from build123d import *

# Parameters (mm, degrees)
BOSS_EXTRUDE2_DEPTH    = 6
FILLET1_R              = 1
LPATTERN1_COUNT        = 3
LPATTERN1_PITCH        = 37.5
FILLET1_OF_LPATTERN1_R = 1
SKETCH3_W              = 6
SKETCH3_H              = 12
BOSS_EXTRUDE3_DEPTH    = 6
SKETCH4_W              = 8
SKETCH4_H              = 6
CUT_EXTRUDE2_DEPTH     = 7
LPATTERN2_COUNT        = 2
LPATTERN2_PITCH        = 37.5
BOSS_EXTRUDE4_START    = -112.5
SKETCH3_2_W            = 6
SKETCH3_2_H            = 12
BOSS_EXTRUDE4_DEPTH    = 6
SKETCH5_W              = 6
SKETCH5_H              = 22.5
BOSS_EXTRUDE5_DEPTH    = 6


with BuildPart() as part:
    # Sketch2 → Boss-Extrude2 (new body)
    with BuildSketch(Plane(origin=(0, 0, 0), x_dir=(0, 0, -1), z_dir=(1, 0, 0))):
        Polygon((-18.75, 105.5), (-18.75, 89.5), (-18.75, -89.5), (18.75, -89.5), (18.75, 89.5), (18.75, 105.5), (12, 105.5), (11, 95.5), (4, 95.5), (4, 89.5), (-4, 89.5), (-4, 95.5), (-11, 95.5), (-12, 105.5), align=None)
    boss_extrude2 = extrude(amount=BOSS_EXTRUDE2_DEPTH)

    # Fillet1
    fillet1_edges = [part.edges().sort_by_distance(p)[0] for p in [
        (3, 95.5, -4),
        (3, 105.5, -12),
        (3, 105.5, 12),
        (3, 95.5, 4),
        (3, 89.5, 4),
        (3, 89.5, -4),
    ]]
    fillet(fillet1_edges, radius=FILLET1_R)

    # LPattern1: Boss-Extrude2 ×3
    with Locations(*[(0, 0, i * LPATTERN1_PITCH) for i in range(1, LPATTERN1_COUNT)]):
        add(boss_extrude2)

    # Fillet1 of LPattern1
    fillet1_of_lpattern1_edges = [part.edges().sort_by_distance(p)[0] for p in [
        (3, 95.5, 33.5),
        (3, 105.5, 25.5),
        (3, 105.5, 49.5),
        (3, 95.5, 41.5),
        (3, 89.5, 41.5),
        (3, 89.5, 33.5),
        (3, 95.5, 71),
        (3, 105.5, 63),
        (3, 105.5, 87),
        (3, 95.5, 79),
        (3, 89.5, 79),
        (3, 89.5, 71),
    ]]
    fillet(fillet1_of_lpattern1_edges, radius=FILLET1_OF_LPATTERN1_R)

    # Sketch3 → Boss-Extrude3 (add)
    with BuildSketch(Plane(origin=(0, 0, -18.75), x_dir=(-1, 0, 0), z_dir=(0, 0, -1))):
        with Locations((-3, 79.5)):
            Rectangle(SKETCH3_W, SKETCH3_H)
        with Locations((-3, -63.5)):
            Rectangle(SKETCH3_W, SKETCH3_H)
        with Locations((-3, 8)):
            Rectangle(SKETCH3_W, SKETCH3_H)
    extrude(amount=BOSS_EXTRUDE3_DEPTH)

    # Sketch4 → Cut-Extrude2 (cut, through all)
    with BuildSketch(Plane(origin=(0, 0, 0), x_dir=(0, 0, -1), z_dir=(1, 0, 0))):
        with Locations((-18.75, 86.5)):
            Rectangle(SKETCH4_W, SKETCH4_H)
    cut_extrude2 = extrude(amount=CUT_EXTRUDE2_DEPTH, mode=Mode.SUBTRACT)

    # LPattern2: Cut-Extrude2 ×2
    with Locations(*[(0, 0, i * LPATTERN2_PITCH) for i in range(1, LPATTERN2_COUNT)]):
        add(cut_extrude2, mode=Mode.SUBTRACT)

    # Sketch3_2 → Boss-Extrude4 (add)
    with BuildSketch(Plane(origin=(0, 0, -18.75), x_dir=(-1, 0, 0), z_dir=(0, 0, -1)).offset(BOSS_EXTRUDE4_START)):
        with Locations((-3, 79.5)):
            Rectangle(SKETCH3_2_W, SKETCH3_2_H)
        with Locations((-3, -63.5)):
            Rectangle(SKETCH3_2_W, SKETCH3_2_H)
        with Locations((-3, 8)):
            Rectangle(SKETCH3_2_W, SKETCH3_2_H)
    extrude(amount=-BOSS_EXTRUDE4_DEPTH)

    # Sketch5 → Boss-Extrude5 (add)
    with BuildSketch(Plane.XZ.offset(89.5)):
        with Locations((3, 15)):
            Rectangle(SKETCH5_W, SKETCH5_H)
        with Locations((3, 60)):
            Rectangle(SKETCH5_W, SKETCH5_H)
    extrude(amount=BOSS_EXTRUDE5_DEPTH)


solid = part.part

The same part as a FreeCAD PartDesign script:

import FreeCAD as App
import Part
import Sketcher

V = App.Vector


def edges_at(feature, points):
    """Names of the edges that pass closest to the given points."""
    edges = feature.Shape.Edges
    near = lambda p: min(range(len(edges)), key=lambda i: edges[i].distToShape(Part.Vertex(*p))[0])
    return sorted({f"Edge{near(p) + 1}" for p in points})


def add_polygon(sketch, points):
    """Adds a closed chain of lines whose ends are joined by coincident constraints."""
    first, n = sketch.GeometryCount, len(points)
    for a, b in zip(points, points[1:] + points[:1]):
        sketch.addGeometry(Part.LineSegment(App.Vector(*a, 0), App.Vector(*b, 0)), False)
    for i in range(n):
        sketch.addConstraint(Sketcher.Constraint("Coincident", first + i, 2, first + (i + 1) % n, 1))

doc = App.newDocument("Part")
body = doc.addObject("PartDesign::Body", "Body")

# Sketch on YZ plane
sketch1 = doc.addObject("Sketcher::SketchObject", "Sketch")
body.addObject(sketch1)
sketch1.AttachmentSupport = (doc.YZ_Plane, [""])
sketch1.MapMode = "FlatFace"
add_polygon(sketch1, [(106, 19), (-90, 19), (-90, -19), (106, -19), (106, -12), (96, -11), (96, -4), (90, -4), (90, 4), (96, 4), (96, 11), (106, 12)])  # lines 0-11
sketch1.addConstraint([
    Sketcher.Constraint("Horizontal", 0),
    Sketcher.Constraint("Vertical", 1),
    Sketcher.Constraint("Horizontal", 2),
    Sketcher.Constraint("Vertical", 3),
    Sketcher.Constraint("Vertical", 5),
    Sketcher.Constraint("Horizontal", 6),
    Sketcher.Constraint("Vertical", 7),
    Sketcher.Constraint("Horizontal", 8),
    Sketcher.Constraint("Vertical", 9),
    Sketcher.Constraint("Vertical", 11),
    Sketcher.Constraint("Symmetric", 5, 2, 8, 2, -1),
    Sketcher.Constraint("Symmetric", 3, 2, 10, 2, -1),
    Sketcher.Constraint("Equal", 5, 9),
    Sketcher.Constraint("Equal", 3, 11),
    Sketcher.Constraint("DistanceX", 0, 2, 0, 1, 195.0),
    Sketcher.Constraint("DistanceX", 6, 2, 6, 1, 6.0),
    Sketcher.Constraint("DistanceY", 5, 1, 5, 2, 7.0),
    Sketcher.Constraint("DistanceY", 7, 1, 7, 2, 8.0),
    Sketcher.Constraint("DistanceY", 1, 2, 1, 1, 37.5),
    Sketcher.Constraint("DistanceY", 3, 2, -1, 1, 12.0),
    Sketcher.Constraint("DistanceX", 4, 2, 3, 2, 10.0),
    Sketcher.Constraint("DistanceX", 0, 2, -1, 1, 89.5),
])
pad1 = doc.addObject("PartDesign::Pad", "Pad")
body.addObject(pad1)
pad1.Profile = sketch1
pad1.Length = 6
doc.recompute()

fillet = doc.addObject("PartDesign::Fillet", "Fillet")
body.addObject(fillet)
fillet.Base = (pad1, edges_at(pad1, [
    (3, 95.5, -4),
    (3, 105.5, -12),
    (3, 105.5, 12),
    (3, 95.5, 4),
    (3, 89.5, 4),
    (3, 89.5, -4),
]))
fillet.Radius = 1
doc.recompute()

linearpattern = doc.addObject("PartDesign::LinearPattern", "LinearPattern")
body.addObject(linearpattern)
linearpattern.Originals = [pad1]
linearpattern.Direction = (doc.Z_Axis, [""])
linearpattern.Mode = "offset"
linearpattern.Offset = 37.5
linearpattern.Occurrences = 3
body.Tip = linearpattern
doc.recompute()

fillet2 = doc.addObject("PartDesign::Fillet", "Fillet001")
body.addObject(fillet2)
fillet2.Base = (linearpattern, edges_at(linearpattern, [
    (3, 95.5, 33.5),
    (3, 105.5, 25.5),
    (3, 105.5, 49.5),
    (3, 95.5, 41.5),
    (3, 89.5, 41.5),
    (3, 89.5, 33.5),
    (3, 95.5, 71),
    (3, 105.5, 63),
    (3, 105.5, 87),
    (3, 95.5, 79),
    (3, 89.5, 79),
    (3, 89.5, 71),
]))
fillet2.Radius = 1

# Sketch on XY plane
sketch2 = doc.addObject("Sketcher::SketchObject", "Sketch001")
body.addObject(sketch2)
sketch2.AttachmentSupport = (doc.XY_Plane, [""])
sketch2.MapMode = "FlatFace"
sketch2.AttachmentOffset = App.Placement(V(0, 0, -18.75), App.Rotation())
add_polygon(sketch2, [(6, 86), (6, 74), (0, 74), (0, 86)])  # lines 0-3
add_polygon(sketch2, [(6, -58), (6, -70), (0, -70), (0, -58)])  # lines 4-7
add_polygon(sketch2, [(6, 14), (6, 2), (0, 2), (0, 14)])  # lines 8-11
sketch2.addConstraint([
    Sketcher.Constraint("Vertical", 0),
    Sketcher.Constraint("Horizontal", 1),
    Sketcher.Constraint("Vertical", 2),
    Sketcher.Constraint("Horizontal", 3),
    Sketcher.Constraint("Vertical", 4),
    Sketcher.Constraint("Horizontal", 5),
    Sketcher.Constraint("Vertical", 6),
    Sketcher.Constraint("Horizontal", 7),
    Sketcher.Constraint("Vertical", 8),
    Sketcher.Constraint("Horizontal", 9),
    Sketcher.Constraint("Vertical", 10),
    Sketcher.Constraint("Horizontal", 11),
    Sketcher.Constraint("PointOnObject", 1, 2, -2),
    Sketcher.Constraint("PointOnObject", 5, 2, -2),
    Sketcher.Constraint("PointOnObject", 9, 2, -2),
    Sketcher.Constraint("Vertical", 3, 2, 4, 2),
    Sketcher.Constraint("Vertical", 7, 2, 8, 2),
    Sketcher.Constraint("Equal", 2, 4),
    Sketcher.Constraint("Equal", 6, 8),
    Sketcher.Constraint("DistanceX", 1, 2, 1, 1, 6.0),
    Sketcher.Constraint("DistanceY", 0, 2, 0, 1, 12.0),
    Sketcher.Constraint("DistanceY", -1, 1, 8, 2, 2.0),
    Sketcher.Constraint("DistanceY", 4, 2, 0, 2, 143.0),
    Sketcher.Constraint("DistanceY", -1, 1, 0, 2, 73.5),
])
pad2 = doc.addObject("PartDesign::Pad", "Pad001")
body.addObject(pad2)
pad2.Profile = sketch2
pad2.Length = 6
pad2.Reversed = True

# Sketch on YZ plane
sketch3 = doc.addObject("Sketcher::SketchObject", "Sketch002")
body.addObject(sketch3)
sketch3.AttachmentSupport = (doc.YZ_Plane, [""])
sketch3.MapMode = "FlatFace"
add_polygon(sketch3, [(90, 23), (84, 23), (84, 15), (90, 15)])  # lines 0-3
sketch3.addConstraint([
    Sketcher.Constraint("Horizontal", 0),
    Sketcher.Constraint("Vertical", 1),
    Sketcher.Constraint("Horizontal", 2),
    Sketcher.Constraint("Vertical", 3),
    Sketcher.Constraint("DistanceX", 0, 2, 0, 1, 6.0),
    Sketcher.Constraint("DistanceY", 1, 2, 1, 1, 8.0),
    Sketcher.Constraint("DistanceX", -1, 1, 0, 2, 83.5),
    Sketcher.Constraint("DistanceY", -1, 1, 0, 2, 22.75),
])
pocket1 = doc.addObject("PartDesign::Pocket", "Pocket")
body.addObject(pocket1)
pocket1.Profile = sketch3
pocket1.Type = "ThroughAll"
pocket1.Reversed = True
doc.recompute()

linearpattern2 = doc.addObject("PartDesign::LinearPattern", "LinearPattern001")
body.addObject(linearpattern2)
linearpattern2.Originals = [pocket1]
linearpattern2.Direction = (doc.Z_Axis, [""])
linearpattern2.Mode = "offset"
linearpattern2.Offset = 37.5
linearpattern2.Occurrences = 2
body.Tip = linearpattern2

# Sketch on XY plane
sketch4 = doc.addObject("Sketcher::SketchObject", "Sketch003")
body.addObject(sketch4)
sketch4.AttachmentSupport = (doc.XY_Plane, [""])
sketch4.MapMode = "FlatFace"
sketch4.AttachmentOffset = App.Placement(V(0, 0, 93.75), App.Rotation())
add_polygon(sketch4, [(6, 86), (6, 74), (0, 74), (0, 86)])  # lines 0-3
add_polygon(sketch4, [(6, -58), (6, -70), (0, -70), (0, -58)])  # lines 4-7
add_polygon(sketch4, [(6, 14), (6, 2), (0, 2), (0, 14)])  # lines 8-11
sketch4.addConstraint([
    Sketcher.Constraint("Vertical", 0),
    Sketcher.Constraint("Horizontal", 1),
    Sketcher.Constraint("Vertical", 2),
    Sketcher.Constraint("Horizontal", 3),
    Sketcher.Constraint("Vertical", 4),
    Sketcher.Constraint("Horizontal", 5),
    Sketcher.Constraint("Vertical", 6),
    Sketcher.Constraint("Horizontal", 7),
    Sketcher.Constraint("Vertical", 8),
    Sketcher.Constraint("Horizontal", 9),
    Sketcher.Constraint("Vertical", 10),
    Sketcher.Constraint("Horizontal", 11),
    Sketcher.Constraint("PointOnObject", 1, 2, -2),
    Sketcher.Constraint("PointOnObject", 5, 2, -2),
    Sketcher.Constraint("PointOnObject", 9, 2, -2),
    Sketcher.Constraint("Vertical", 3, 2, 4, 2),
    Sketcher.Constraint("Vertical", 7, 2, 8, 2),
    Sketcher.Constraint("Equal", 2, 4),
    Sketcher.Constraint("Equal", 6, 8),
    Sketcher.Constraint("DistanceX", 1, 2, 1, 1, 6.0),
    Sketcher.Constraint("DistanceY", 0, 2, 0, 1, 12.0),
    Sketcher.Constraint("DistanceY", -1, 1, 8, 2, 2.0),
    Sketcher.Constraint("DistanceY", 4, 2, 0, 2, 143.0),
    Sketcher.Constraint("DistanceY", -1, 1, 0, 2, 73.5),
])
pad3 = doc.addObject("PartDesign::Pad", "Pad002")
body.addObject(pad3)
pad3.Profile = sketch4
pad3.Length = 6

# Sketch on XZ plane
sketch5 = doc.addObject("Sketcher::SketchObject", "Sketch004")
body.addObject(sketch5)
sketch5.AttachmentSupport = (doc.XZ_Plane, [""])
sketch5.MapMode = "FlatFace"
sketch5.AttachmentOffset = App.Placement(V(0, 0, 89.5), App.Rotation())
add_polygon(sketch5, [(0, 26), (0, 4), (6, 4), (6, 26)])  # lines 0-3
add_polygon(sketch5, [(0, 71), (0, 49), (6, 49), (6, 71)])  # lines 4-7
sketch5.addConstraint([
    Sketcher.Constraint("Vertical", 0),
    Sketcher.Constraint("Horizontal", 1),
    Sketcher.Constraint("Vertical", 2),
    Sketcher.Constraint("Horizontal", 3),
    Sketcher.Constraint("Vertical", 4),
    Sketcher.Constraint("Horizontal", 5),
    Sketcher.Constraint("Vertical", 6),
    Sketcher.Constraint("Horizontal", 7),
    Sketcher.Constraint("PointOnObject", 0, 2, -2),
    Sketcher.Constraint("PointOnObject", 4, 2, -2),
    Sketcher.Constraint("Vertical", 2, 2, 5, 2),
    Sketcher.Constraint("Equal", 2, 4),
    Sketcher.Constraint("DistanceX", 1, 1, 1, 2, 6.0),
    Sketcher.Constraint("DistanceY", 0, 2, 0, 1, 22.5),
    Sketcher.Constraint("DistanceY", 0, 2, 4, 2, 45.0),
    Sketcher.Constraint("DistanceY", -1, 1, 0, 2, 3.75),
])
pad4 = doc.addObject("PartDesign::Pad", "Pad003")
body.addObject(pad4)
pad4.Profile = sketch5
pad4.Length = 6

doc.recompute()
